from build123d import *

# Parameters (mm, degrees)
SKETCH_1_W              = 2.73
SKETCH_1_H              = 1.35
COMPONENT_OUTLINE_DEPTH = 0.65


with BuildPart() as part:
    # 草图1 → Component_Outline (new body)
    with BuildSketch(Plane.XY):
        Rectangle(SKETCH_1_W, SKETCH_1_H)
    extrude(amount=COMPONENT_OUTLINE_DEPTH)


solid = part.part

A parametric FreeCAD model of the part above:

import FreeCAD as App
import Part
import Sketcher
Q = App.Units.Quantity

doc = App.newDocument("Part")
body = doc.addObject("PartDesign::Body", "Body")

sketch1 = body.newObject("Sketcher::SketchObject", "Sketch")
sketch1.AttachmentSupport = (doc.getObject("XY_Plane"), [""])
sketch1.MapMode = "FlatFace"
sketch1.addGeometry(Part.LineSegment(App.Vector(-1.4, 0.7, 0), App.Vector(-1.4, -0.7, 0)), False)
sketch1.addGeometry(Part.LineSegment(App.Vector(-1.4, -0.7, 0), App.Vector(1.4, -0.7, 0)), False)
sketch1.addGeometry(Part.LineSegment(App.Vector(1.4, -0.7, 0), App.Vector(1.4, 0.7, 0)), False)
sketch1.addGeometry(Part.LineSegment(App.Vector(1.4, 0.7, 0), App.Vector(-1.4, 0.7, 0)), False)
sketch1.addConstraint(Sketcher.Constraint("Coincident", 0, 2, 1, 1))
sketch1.addConstraint(Sketcher.Constraint("Coincident", 1, 2, 2, 1))
sketch1.addConstraint(Sketcher.Constraint("Coincident", 2, 2, 3, 1))
sketch1.addConstraint(Sketcher.Constraint("Coincident", 3, 2, 0, 1))
sketch1.addConstraint(Sketcher.Constraint("Vertical", 0))
sketch1.addConstraint(Sketcher.Constraint("Horizontal", 1))
sketch1.addConstraint(Sketcher.Constraint("Vertical", 2))
sketch1.addConstraint(Sketcher.Constraint("Horizontal", 3))
sketch1.addConstraint(Sketcher.Constraint("Symmetric", 0, 2, 2, 2, -1, 1))
sketch1.addConstraint(Sketcher.Constraint("DistanceX", 1, 1, 1, 2, Q("2.73 mm")))
sketch1.addConstraint(Sketcher.Constraint("DistanceY", 0, 2, 0, 1, Q("1.35 mm")))
pad1 = body.newObject("PartDesign::Pad", "Pad")
pad1.Profile = sketch1
pad1.Length = 0.65

doc.recompute()
